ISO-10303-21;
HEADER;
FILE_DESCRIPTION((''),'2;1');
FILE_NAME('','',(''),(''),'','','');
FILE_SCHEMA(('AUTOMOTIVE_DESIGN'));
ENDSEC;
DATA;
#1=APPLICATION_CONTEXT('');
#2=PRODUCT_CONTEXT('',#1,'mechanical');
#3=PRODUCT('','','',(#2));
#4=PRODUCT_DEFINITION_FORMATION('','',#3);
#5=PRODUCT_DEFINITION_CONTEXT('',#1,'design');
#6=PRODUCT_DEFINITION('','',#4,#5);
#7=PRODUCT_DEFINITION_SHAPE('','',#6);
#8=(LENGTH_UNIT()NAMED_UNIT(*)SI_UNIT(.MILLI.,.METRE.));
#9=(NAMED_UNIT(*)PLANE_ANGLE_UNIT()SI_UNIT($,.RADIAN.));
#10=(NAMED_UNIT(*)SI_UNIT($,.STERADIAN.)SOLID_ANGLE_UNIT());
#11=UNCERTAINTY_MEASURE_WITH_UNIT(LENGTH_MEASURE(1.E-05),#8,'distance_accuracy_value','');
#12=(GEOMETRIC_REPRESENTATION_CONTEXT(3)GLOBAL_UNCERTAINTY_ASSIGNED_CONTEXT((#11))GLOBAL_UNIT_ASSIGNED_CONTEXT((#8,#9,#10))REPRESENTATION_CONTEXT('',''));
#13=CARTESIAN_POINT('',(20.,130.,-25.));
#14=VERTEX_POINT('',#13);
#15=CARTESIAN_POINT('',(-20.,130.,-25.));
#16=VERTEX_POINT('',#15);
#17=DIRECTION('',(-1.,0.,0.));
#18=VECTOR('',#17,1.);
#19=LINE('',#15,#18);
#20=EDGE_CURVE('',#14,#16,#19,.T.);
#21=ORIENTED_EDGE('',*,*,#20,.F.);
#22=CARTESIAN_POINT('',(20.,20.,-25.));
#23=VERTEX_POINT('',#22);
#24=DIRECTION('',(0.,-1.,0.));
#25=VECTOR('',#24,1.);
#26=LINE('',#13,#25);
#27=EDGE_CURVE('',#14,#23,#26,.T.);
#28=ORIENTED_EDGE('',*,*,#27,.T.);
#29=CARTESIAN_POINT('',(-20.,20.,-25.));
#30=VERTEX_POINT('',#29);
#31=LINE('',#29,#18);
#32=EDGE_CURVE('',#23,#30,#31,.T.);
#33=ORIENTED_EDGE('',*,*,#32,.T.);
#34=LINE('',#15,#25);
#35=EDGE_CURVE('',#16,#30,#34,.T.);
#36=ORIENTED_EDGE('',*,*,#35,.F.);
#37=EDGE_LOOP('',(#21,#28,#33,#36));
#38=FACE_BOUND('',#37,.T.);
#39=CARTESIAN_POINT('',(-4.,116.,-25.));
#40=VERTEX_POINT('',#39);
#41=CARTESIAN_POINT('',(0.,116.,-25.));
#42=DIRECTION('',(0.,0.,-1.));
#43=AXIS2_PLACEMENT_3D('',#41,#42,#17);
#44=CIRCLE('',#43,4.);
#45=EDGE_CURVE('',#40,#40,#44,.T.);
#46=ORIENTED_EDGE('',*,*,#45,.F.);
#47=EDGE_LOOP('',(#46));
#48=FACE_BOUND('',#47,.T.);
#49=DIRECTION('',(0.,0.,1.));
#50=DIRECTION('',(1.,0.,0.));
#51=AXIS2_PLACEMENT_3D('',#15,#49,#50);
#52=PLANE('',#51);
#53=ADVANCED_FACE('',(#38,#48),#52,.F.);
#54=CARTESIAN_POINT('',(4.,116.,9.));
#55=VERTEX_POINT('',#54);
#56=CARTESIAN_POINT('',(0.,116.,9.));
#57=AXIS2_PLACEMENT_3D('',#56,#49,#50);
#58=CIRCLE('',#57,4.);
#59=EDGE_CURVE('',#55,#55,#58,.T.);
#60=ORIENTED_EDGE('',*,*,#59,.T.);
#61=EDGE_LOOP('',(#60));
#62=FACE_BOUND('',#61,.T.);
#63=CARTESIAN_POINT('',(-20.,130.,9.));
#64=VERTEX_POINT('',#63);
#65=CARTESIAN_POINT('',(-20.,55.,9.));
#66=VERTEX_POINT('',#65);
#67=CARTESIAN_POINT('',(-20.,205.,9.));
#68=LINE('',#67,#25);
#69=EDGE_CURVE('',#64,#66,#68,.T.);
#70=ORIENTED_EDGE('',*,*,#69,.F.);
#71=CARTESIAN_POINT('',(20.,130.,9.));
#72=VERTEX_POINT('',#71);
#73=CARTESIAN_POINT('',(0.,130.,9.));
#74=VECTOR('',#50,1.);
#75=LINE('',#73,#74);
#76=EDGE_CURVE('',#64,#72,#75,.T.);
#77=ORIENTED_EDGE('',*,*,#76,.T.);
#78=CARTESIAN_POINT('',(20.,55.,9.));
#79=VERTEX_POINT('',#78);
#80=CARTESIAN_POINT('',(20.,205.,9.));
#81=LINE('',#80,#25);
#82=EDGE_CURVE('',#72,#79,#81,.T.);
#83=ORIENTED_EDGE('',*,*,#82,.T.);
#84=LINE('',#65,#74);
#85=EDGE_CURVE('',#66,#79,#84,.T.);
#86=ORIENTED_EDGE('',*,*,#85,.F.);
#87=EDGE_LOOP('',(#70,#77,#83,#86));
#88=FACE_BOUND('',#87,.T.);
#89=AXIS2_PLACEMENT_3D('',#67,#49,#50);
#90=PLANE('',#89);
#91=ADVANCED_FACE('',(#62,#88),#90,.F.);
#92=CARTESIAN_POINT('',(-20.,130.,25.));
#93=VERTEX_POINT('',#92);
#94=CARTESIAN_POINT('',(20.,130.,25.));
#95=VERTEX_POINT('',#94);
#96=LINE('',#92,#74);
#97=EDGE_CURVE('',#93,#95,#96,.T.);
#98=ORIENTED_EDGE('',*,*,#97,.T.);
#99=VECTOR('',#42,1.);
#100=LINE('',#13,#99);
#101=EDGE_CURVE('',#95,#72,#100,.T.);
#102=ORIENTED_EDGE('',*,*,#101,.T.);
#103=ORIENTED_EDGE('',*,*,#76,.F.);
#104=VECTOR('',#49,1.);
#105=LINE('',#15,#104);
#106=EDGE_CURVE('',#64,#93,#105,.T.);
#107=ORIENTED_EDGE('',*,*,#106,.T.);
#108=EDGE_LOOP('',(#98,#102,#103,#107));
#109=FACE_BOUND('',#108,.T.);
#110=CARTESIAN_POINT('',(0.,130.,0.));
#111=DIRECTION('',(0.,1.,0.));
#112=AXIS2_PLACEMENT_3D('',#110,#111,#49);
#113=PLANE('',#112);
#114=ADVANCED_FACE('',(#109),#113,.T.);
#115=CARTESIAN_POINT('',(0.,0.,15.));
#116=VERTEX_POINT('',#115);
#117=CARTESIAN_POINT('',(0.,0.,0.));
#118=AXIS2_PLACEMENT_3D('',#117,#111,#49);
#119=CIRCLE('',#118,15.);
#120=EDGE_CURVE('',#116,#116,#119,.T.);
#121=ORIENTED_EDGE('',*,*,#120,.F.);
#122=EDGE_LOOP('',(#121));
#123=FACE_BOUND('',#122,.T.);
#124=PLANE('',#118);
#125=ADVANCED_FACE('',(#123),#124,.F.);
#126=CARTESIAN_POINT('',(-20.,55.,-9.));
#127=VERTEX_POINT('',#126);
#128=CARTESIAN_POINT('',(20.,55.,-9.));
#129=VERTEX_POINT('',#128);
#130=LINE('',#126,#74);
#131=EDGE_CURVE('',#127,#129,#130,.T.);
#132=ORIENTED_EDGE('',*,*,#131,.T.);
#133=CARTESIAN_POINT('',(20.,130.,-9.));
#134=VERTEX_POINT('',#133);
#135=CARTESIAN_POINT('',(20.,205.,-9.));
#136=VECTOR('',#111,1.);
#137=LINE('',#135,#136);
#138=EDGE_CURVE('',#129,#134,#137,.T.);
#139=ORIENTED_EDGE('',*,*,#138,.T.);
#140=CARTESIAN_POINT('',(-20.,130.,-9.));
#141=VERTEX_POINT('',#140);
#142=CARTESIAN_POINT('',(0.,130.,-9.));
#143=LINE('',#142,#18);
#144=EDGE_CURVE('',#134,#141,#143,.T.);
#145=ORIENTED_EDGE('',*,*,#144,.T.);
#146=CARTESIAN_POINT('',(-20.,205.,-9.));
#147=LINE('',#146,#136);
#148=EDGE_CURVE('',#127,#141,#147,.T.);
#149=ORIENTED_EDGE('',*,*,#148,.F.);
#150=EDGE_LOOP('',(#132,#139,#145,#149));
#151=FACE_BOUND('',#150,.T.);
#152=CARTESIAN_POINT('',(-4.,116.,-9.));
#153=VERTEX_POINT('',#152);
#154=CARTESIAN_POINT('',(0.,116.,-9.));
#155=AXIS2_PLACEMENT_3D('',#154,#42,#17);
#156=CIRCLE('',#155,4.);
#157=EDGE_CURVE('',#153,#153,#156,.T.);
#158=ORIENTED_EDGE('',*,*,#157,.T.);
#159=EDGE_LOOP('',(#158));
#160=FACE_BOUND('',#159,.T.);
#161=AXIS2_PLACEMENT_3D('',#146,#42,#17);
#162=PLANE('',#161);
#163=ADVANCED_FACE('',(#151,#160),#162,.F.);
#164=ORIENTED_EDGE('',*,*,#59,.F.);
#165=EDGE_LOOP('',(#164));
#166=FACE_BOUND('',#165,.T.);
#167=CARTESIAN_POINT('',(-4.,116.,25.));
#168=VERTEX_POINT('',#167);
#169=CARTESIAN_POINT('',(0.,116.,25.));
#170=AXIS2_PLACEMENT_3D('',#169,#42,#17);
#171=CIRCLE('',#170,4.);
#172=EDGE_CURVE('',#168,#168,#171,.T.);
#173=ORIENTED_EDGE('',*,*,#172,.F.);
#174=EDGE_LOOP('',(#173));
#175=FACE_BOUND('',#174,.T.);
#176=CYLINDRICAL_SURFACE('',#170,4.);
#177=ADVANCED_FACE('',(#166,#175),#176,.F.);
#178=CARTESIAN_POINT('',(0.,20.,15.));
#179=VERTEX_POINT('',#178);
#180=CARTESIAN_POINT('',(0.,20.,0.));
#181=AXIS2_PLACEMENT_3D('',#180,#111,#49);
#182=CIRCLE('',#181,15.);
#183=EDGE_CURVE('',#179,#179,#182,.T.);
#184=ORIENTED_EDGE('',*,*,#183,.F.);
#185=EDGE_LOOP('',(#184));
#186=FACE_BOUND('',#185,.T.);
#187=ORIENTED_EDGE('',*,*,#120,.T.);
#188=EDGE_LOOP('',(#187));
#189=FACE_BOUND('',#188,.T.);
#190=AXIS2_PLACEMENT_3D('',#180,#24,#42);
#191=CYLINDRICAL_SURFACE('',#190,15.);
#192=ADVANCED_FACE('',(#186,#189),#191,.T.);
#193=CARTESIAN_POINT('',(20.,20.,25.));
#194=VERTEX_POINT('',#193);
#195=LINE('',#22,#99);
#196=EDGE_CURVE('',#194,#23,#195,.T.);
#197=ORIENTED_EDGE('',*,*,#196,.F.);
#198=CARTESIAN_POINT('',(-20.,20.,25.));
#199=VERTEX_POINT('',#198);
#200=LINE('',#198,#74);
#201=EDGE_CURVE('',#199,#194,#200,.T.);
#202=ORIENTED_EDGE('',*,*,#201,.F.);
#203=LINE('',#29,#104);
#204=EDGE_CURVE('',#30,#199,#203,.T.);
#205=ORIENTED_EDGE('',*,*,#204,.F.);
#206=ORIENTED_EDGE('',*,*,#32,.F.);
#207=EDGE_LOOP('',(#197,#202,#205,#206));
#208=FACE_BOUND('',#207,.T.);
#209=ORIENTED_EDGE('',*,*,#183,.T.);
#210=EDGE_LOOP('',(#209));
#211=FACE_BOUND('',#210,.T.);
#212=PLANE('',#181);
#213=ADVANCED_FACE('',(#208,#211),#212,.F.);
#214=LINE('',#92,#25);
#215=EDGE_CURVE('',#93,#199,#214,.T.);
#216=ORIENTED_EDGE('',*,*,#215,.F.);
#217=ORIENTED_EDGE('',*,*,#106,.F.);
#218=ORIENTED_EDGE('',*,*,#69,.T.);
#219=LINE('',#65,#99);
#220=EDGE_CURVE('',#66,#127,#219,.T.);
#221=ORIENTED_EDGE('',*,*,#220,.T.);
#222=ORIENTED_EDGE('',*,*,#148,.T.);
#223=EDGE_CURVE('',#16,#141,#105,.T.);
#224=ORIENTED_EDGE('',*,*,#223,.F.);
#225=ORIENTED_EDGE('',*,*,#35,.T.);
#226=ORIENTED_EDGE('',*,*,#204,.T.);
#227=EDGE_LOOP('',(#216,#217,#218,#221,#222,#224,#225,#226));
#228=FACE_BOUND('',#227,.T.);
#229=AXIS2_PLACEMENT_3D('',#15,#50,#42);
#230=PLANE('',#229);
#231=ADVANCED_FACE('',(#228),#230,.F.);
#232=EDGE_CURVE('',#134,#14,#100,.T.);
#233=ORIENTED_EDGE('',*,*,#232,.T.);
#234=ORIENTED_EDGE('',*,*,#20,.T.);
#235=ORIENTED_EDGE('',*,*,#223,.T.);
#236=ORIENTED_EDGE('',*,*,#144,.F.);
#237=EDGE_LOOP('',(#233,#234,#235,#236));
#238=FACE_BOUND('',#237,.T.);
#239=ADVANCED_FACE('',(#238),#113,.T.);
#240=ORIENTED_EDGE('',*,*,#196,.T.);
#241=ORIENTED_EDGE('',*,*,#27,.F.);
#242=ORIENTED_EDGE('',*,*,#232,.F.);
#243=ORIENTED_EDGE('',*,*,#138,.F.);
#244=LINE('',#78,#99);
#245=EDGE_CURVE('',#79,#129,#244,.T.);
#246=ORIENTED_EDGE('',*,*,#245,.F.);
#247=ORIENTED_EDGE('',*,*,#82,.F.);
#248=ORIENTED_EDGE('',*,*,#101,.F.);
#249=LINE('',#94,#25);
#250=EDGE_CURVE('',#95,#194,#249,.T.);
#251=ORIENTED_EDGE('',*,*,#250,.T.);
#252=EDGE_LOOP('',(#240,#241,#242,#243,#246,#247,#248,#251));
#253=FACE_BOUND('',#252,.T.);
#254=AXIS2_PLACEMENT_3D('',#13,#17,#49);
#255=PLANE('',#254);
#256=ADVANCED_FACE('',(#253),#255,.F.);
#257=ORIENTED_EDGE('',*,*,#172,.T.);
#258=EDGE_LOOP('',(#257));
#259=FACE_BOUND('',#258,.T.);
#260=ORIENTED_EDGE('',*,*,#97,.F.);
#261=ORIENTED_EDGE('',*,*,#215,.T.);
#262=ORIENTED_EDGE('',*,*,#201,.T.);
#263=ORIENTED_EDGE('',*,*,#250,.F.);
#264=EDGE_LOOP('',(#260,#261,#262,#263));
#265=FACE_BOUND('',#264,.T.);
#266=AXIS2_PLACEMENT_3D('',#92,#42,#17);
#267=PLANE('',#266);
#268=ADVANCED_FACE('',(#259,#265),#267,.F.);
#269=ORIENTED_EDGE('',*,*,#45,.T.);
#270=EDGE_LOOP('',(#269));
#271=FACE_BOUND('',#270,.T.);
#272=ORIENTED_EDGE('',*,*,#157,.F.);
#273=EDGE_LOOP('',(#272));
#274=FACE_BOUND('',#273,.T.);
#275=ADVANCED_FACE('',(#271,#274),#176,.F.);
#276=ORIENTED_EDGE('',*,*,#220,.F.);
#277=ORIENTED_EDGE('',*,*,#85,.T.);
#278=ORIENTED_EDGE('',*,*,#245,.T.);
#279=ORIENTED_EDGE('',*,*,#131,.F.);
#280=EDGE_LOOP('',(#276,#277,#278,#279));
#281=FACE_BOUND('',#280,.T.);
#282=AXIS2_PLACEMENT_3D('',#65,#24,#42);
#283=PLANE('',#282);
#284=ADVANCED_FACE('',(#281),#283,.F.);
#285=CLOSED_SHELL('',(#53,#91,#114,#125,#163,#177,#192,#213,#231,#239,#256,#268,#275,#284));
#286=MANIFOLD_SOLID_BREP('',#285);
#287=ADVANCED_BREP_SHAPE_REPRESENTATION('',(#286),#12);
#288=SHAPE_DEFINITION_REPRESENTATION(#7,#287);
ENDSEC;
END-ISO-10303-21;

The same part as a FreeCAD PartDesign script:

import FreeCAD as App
import Part
import Sketcher

V = App.Vector

doc = App.newDocument("Part")
params = doc.addObject("Spreadsheet::Sheet", "Params")
for row, (alias, value) in enumerate([
    ("sketch1_diameter", "30 mm"),
    ("pad1_length", "20 mm"),
    ("sketch2_width", "40 mm"),
    ("sketch2_height", "50 mm"),
    ("pad2_length", "110 mm"),
    ("sketch3_width", "150 mm"),
    ("sketch3_height", "18 mm"),
    ("sketch4_diameter", "8 mm"),
], start=1):
    params.set(f"A{row}", alias)
    params.set(f"B{row}", "=" + value)
    params.setAlias(f"B{row}", alias)

body = doc.addObject("PartDesign::Body", "Body")

# Sketch on XZ plane
sketch1 = body.newObject("Sketcher::SketchObject", "Sketch")
sketch1.AttachmentSupport = (doc.getObject("XZ_Plane"), [""])
sketch1.MapMode = "FlatFace"
sketch1.addGeometry(Part.Circle(V(0, 0, 0), V(0, 0, 1), 15), False)
sketch1.addConstraint([
    Sketcher.Constraint("Coincident", 0, 3, -1, 1),
    Sketcher.Constraint("Diameter", 0, 30.0),
])
sketch1.setExpression("Constraints[1]", "Params.sketch1_diameter")
pad1 = body.newObject("PartDesign::Pad", "Pad")
pad1.Profile = sketch1
pad1.setExpression("Length", "Params.pad1_length")
pad1.Reversed = True

# Sketch on XZ plane
sketch2 = body.newObject("Sketcher::SketchObject", "Sketch001")
sketch2.AttachmentSupport = (doc.getObject("XZ_Plane"), [""])
sketch2.MapMode = "FlatFace"
sketch2.AttachmentOffset = App.Placement(V(0, 0, -20), App.Rotation())
sketch2.addGeometry([
    Part.LineSegment(V(-20, -25, 0), V(-20, 25, 0)),
    Part.LineSegment(V(-20, 25, 0), V(20, 25, 0)),
    Part.LineSegment(V(20, 25, 0), V(20, -25, 0)),
    Part.LineSegment(V(20, -25, 0), V(-20, -25, 0)),
], False)
sketch2.addConstraint([
    Sketcher.Constraint("Coincident", 0, 2, 1, 1),
    Sketcher.Constraint("Coincident", 1, 2, 2, 1),
    Sketcher.Constraint("Coincident", 2, 2, 3, 1),
    Sketcher.Constraint("Coincident", 3, 2, 0, 1),
    Sketcher.Constraint("Vertical", 0),
    Sketcher.Constraint("Horizontal", 1),
    Sketcher.Constraint("Vertical", 2),
    Sketcher.Constraint("Horizontal", 3),
    Sketcher.Constraint("Symmetric", 0, 2, 2, 2, -1, 1),
    Sketcher.Constraint("DistanceX", 1, 1, 1, 2, 40.0),
    Sketcher.Constraint("DistanceY", 0, 1, 0, 2, 50.0),
])
sketch2.setExpression("Constraints[9]", "Params.sketch2_width")
sketch2.setExpression("Constraints[10]", "Params.sketch2_height")
pad2 = body.newObject("PartDesign::Pad", "Pad001")
pad2.Profile = sketch2
pad2.setExpression("Length", "Params.pad2_length")
pad2.Reversed = True

# Sketch on YZ plane
sketch3 = body.newObject("Sketcher::SketchObject", "Sketch002")
sketch3.AttachmentSupport = (doc.getObject("YZ_Plane"), [""])
sketch3.MapMode = "FlatFace"
sketch3.AttachmentOffset = App.Placement(V(0, 0, 20), App.Rotation())
sketch3.addGeometry([
    Part.LineSegment(V(205, 9, 0), V(55, 9, 0)),
    Part.LineSegment(V(55, 9, 0), V(55, -9, 0)),
    Part.LineSegment(V(55, -9, 0), V(205, -9, 0)),
    Part.LineSegment(V(205, -9, 0), V(205, 9, 0)),
], False)
sketch3.addConstraint([
    Sketcher.Constraint("Coincident", 0, 2, 1, 1),
    Sketcher.Constraint("Coincident", 1, 2, 2, 1),
    Sketcher.Constraint("Coincident", 2, 2, 3, 1),
    Sketcher.Constraint("Coincident", 3, 2, 0, 1),
    Sketcher.Constraint("Horizontal", 0),
    Sketcher.Constraint("Vertical", 1),
    Sketcher.Constraint("Horizontal", 2),
    Sketcher.Constraint("Vertical", 3),
    Sketcher.Constraint("DistanceX", 0, 2, 0, 1, 150.0),
    Sketcher.Constraint("DistanceY", 1, 2, 1, 1, 18.0),
    Sketcher.Constraint("DistanceX", -1, 1, 0, 2, 55.0),
    Sketcher.Constraint("DistanceY", -1, 1, 0, 2, 9.0),
])
sketch3.setExpression("Constraints[8]", "Params.sketch3_width")
sketch3.setExpression("Constraints[9]", "Params.sketch3_height")
pocket1 = body.newObject("PartDesign::Pocket", "Pocket")
pocket1.Profile = sketch3
pocket1.Type = "ThroughAll"

# Sketch on XY plane
sketch4 = body.newObject("Sketcher::SketchObject", "Sketch003")
sketch4.AttachmentSupport = (doc.getObject("XY_Plane"), [""])
sketch4.MapMode = "FlatFace"
sketch4.AttachmentOffset = App.Placement(V(0, 0, -25), App.Rotation())
sketch4.addGeometry(Part.Circle(V(0, 116, 0), V(0, 0, 1), 4), False)
sketch4.addConstraint([
    Sketcher.Constraint("PointOnObject", 0, 3, -2),
    Sketcher.Constraint("Diameter", 0, 8.0),
    Sketcher.Constraint("DistanceY", -1, 1, 0, 3, 116.0),
])
sketch4.setExpression("Constraints[1]", "Params.sketch4_diameter")
pocket2 = body.newObject("PartDesign::Pocket", "Pocket001")
pocket2.Profile = sketch4
pocket2.Type = "ThroughAll"
pocket2.Reversed = True

doc.recompute()
